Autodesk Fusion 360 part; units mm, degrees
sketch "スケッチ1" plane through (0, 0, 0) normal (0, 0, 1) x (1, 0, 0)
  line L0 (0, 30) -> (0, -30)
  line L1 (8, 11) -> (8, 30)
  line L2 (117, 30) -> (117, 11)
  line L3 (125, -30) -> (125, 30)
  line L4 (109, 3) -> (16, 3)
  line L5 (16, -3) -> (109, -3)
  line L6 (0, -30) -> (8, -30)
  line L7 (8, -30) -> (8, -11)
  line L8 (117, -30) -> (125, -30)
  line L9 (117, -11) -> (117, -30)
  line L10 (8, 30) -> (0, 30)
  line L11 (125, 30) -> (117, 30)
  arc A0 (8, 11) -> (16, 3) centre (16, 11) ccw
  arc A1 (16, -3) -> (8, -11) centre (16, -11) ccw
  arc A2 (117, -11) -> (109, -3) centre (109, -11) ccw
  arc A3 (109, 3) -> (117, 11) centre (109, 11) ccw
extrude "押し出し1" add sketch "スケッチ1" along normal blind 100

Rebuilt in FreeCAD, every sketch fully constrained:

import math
import FreeCAD as App
import Part
import Sketcher

V = App.Vector
Q = App.Units.Quantity

doc = App.newDocument("Part")
body = doc.addObject("PartDesign::Body", "Body")

sketch1 = body.newObject("Sketcher::SketchObject", "Sketch")
sketch1.AttachmentSupport = (doc.getObject("XY_Plane"), [""])
sketch1.MapMode = "FlatFace"
sketch1.addGeometry([
    Part.LineSegment(V(8, 30, 0), V(0, 30, 0)),
    Part.LineSegment(V(0, 30, 0), V(0, -30, 0)),
    Part.LineSegment(V(0, -30, 0), V(8, -30, 0)),
    Part.LineSegment(V(8, -30, 0), V(8, -11, 0)),
    Part.ArcOfCircle(Part.Circle(V(16, -11, 0), V(0, 0, 1), 8), math.radians(90), math.radians(180)),
    Part.LineSegment(V(16, -3, 0), V(109, -3, 0)),
    Part.ArcOfCircle(Part.Circle(V(109, -11, 0), V(0, 0, 1), 8), math.radians(0), math.radians(90)),
    Part.LineSegment(V(117, -11, 0), V(117, -30, 0)),
    Part.LineSegment(V(117, -30, 0), V(125, -30, 0)),
    Part.LineSegment(V(125, -30, 0), V(125, 30, 0)),
    Part.LineSegment(V(125, 30, 0), V(117, 30, 0)),
    Part.LineSegment(V(117, 30, 0), V(117, 11, 0)),
    Part.ArcOfCircle(Part.Circle(V(109, 11, 0), V(0, 0, 1), 8), math.radians(-90), math.radians(0)),
    Part.LineSegment(V(109, 3, 0), V(16, 3, 0)),
    Part.ArcOfCircle(Part.Circle(V(16, 11, 0), V(0, 0, 1), 8), math.radians(180), math.radians(270)),
    Part.LineSegment(V(8, 11, 0), V(8, 30, 0)),
], False)
sketch1.addConstraint([
    Sketcher.Constraint("Coincident", 0, 2, 1, 1),
    Sketcher.Constraint("Coincident", 1, 2, 2, 1),
    Sketcher.Constraint("Coincident", 2, 2, 3, 1),
    Sketcher.Constraint("Tangent", 3, 2, 4, 2),
    Sketcher.Constraint("Tangent", 4, 1, 5, 1),
    Sketcher.Constraint("Tangent", 5, 2, 6, 2),
    Sketcher.Constraint("Tangent", 6, 1, 7, 1),
    Sketcher.Constraint("Coincident", 7, 2, 8, 1),
    Sketcher.Constraint("Coincident", 8, 2, 9, 1),
    Sketcher.Constraint("Coincident", 9, 2, 10, 1),
    Sketcher.Constraint("Coincident", 10, 2, 11, 1),
    Sketcher.Constraint("Tangent", 11, 2, 12, 2),
    Sketcher.Constraint("Tangent", 12, 1, 13, 1),
    Sketcher.Constraint("Tangent", 13, 2, 14, 2),
    Sketcher.Constraint("Tangent", 14, 1, 15, 1),
    Sketcher.Constraint("Coincident", 15, 2, 0, 1),
    Sketcher.Constraint("Horizontal", 0),
    Sketcher.Constraint("Vertical", 1),
    Sketcher.Constraint("Horizontal", 2),
    Sketcher.Constraint("Vertical", 3),
    Sketcher.Constraint("Horizontal", 5),
    Sketcher.Constraint("Vertical", 7),
    Sketcher.Constraint("Horizontal", 8),
    Sketcher.Constraint("Vertical", 9),
    Sketcher.Constraint("Horizontal", 10),
    Sketcher.Constraint("Vertical", 11),
    Sketcher.Constraint("Horizontal", 13),
    Sketcher.Constraint("Vertical", 15),
    Sketcher.Constraint("Equal", 4, 6),
    Sketcher.Constraint("Equal", 6, 12),
    Sketcher.Constraint("Equal", 12, 14),
    Sketcher.Constraint("Symmetric", 0, 2, 1, 2, -1, 1),
    Sketcher.Constraint("Symmetric", 6, 3, 12, 3, -1),
    Sketcher.Constraint("Horizontal", 2, 2, 7, 2),
    Sketcher.Constraint("Horizontal", 0, 2, 9, 2),
    Sketcher.Constraint("Vertical", 4, 3, 14, 3),
    Sketcher.Constraint("Equal", 2, 8),
    Sketcher.Constraint("Radius", 4, Q("8 mm")),
    Sketcher.Constraint("DistanceX", 0, 2, 0, 1, Q("8 mm")),
    Sketcher.Constraint("DistanceX", 5, 1, 5, 2, Q("93 mm")),
    Sketcher.Constraint("DistanceY", 1, 2, 1, 1, Q("60 mm")),
    Sketcher.Constraint("DistanceY", 3, 1, 3, 2, Q("19 mm")),
])
pad1 = body.newObject("PartDesign::Pad", "Pad")
pad1.Profile = sketch1
pad1.Length = 100

doc.recompute()
